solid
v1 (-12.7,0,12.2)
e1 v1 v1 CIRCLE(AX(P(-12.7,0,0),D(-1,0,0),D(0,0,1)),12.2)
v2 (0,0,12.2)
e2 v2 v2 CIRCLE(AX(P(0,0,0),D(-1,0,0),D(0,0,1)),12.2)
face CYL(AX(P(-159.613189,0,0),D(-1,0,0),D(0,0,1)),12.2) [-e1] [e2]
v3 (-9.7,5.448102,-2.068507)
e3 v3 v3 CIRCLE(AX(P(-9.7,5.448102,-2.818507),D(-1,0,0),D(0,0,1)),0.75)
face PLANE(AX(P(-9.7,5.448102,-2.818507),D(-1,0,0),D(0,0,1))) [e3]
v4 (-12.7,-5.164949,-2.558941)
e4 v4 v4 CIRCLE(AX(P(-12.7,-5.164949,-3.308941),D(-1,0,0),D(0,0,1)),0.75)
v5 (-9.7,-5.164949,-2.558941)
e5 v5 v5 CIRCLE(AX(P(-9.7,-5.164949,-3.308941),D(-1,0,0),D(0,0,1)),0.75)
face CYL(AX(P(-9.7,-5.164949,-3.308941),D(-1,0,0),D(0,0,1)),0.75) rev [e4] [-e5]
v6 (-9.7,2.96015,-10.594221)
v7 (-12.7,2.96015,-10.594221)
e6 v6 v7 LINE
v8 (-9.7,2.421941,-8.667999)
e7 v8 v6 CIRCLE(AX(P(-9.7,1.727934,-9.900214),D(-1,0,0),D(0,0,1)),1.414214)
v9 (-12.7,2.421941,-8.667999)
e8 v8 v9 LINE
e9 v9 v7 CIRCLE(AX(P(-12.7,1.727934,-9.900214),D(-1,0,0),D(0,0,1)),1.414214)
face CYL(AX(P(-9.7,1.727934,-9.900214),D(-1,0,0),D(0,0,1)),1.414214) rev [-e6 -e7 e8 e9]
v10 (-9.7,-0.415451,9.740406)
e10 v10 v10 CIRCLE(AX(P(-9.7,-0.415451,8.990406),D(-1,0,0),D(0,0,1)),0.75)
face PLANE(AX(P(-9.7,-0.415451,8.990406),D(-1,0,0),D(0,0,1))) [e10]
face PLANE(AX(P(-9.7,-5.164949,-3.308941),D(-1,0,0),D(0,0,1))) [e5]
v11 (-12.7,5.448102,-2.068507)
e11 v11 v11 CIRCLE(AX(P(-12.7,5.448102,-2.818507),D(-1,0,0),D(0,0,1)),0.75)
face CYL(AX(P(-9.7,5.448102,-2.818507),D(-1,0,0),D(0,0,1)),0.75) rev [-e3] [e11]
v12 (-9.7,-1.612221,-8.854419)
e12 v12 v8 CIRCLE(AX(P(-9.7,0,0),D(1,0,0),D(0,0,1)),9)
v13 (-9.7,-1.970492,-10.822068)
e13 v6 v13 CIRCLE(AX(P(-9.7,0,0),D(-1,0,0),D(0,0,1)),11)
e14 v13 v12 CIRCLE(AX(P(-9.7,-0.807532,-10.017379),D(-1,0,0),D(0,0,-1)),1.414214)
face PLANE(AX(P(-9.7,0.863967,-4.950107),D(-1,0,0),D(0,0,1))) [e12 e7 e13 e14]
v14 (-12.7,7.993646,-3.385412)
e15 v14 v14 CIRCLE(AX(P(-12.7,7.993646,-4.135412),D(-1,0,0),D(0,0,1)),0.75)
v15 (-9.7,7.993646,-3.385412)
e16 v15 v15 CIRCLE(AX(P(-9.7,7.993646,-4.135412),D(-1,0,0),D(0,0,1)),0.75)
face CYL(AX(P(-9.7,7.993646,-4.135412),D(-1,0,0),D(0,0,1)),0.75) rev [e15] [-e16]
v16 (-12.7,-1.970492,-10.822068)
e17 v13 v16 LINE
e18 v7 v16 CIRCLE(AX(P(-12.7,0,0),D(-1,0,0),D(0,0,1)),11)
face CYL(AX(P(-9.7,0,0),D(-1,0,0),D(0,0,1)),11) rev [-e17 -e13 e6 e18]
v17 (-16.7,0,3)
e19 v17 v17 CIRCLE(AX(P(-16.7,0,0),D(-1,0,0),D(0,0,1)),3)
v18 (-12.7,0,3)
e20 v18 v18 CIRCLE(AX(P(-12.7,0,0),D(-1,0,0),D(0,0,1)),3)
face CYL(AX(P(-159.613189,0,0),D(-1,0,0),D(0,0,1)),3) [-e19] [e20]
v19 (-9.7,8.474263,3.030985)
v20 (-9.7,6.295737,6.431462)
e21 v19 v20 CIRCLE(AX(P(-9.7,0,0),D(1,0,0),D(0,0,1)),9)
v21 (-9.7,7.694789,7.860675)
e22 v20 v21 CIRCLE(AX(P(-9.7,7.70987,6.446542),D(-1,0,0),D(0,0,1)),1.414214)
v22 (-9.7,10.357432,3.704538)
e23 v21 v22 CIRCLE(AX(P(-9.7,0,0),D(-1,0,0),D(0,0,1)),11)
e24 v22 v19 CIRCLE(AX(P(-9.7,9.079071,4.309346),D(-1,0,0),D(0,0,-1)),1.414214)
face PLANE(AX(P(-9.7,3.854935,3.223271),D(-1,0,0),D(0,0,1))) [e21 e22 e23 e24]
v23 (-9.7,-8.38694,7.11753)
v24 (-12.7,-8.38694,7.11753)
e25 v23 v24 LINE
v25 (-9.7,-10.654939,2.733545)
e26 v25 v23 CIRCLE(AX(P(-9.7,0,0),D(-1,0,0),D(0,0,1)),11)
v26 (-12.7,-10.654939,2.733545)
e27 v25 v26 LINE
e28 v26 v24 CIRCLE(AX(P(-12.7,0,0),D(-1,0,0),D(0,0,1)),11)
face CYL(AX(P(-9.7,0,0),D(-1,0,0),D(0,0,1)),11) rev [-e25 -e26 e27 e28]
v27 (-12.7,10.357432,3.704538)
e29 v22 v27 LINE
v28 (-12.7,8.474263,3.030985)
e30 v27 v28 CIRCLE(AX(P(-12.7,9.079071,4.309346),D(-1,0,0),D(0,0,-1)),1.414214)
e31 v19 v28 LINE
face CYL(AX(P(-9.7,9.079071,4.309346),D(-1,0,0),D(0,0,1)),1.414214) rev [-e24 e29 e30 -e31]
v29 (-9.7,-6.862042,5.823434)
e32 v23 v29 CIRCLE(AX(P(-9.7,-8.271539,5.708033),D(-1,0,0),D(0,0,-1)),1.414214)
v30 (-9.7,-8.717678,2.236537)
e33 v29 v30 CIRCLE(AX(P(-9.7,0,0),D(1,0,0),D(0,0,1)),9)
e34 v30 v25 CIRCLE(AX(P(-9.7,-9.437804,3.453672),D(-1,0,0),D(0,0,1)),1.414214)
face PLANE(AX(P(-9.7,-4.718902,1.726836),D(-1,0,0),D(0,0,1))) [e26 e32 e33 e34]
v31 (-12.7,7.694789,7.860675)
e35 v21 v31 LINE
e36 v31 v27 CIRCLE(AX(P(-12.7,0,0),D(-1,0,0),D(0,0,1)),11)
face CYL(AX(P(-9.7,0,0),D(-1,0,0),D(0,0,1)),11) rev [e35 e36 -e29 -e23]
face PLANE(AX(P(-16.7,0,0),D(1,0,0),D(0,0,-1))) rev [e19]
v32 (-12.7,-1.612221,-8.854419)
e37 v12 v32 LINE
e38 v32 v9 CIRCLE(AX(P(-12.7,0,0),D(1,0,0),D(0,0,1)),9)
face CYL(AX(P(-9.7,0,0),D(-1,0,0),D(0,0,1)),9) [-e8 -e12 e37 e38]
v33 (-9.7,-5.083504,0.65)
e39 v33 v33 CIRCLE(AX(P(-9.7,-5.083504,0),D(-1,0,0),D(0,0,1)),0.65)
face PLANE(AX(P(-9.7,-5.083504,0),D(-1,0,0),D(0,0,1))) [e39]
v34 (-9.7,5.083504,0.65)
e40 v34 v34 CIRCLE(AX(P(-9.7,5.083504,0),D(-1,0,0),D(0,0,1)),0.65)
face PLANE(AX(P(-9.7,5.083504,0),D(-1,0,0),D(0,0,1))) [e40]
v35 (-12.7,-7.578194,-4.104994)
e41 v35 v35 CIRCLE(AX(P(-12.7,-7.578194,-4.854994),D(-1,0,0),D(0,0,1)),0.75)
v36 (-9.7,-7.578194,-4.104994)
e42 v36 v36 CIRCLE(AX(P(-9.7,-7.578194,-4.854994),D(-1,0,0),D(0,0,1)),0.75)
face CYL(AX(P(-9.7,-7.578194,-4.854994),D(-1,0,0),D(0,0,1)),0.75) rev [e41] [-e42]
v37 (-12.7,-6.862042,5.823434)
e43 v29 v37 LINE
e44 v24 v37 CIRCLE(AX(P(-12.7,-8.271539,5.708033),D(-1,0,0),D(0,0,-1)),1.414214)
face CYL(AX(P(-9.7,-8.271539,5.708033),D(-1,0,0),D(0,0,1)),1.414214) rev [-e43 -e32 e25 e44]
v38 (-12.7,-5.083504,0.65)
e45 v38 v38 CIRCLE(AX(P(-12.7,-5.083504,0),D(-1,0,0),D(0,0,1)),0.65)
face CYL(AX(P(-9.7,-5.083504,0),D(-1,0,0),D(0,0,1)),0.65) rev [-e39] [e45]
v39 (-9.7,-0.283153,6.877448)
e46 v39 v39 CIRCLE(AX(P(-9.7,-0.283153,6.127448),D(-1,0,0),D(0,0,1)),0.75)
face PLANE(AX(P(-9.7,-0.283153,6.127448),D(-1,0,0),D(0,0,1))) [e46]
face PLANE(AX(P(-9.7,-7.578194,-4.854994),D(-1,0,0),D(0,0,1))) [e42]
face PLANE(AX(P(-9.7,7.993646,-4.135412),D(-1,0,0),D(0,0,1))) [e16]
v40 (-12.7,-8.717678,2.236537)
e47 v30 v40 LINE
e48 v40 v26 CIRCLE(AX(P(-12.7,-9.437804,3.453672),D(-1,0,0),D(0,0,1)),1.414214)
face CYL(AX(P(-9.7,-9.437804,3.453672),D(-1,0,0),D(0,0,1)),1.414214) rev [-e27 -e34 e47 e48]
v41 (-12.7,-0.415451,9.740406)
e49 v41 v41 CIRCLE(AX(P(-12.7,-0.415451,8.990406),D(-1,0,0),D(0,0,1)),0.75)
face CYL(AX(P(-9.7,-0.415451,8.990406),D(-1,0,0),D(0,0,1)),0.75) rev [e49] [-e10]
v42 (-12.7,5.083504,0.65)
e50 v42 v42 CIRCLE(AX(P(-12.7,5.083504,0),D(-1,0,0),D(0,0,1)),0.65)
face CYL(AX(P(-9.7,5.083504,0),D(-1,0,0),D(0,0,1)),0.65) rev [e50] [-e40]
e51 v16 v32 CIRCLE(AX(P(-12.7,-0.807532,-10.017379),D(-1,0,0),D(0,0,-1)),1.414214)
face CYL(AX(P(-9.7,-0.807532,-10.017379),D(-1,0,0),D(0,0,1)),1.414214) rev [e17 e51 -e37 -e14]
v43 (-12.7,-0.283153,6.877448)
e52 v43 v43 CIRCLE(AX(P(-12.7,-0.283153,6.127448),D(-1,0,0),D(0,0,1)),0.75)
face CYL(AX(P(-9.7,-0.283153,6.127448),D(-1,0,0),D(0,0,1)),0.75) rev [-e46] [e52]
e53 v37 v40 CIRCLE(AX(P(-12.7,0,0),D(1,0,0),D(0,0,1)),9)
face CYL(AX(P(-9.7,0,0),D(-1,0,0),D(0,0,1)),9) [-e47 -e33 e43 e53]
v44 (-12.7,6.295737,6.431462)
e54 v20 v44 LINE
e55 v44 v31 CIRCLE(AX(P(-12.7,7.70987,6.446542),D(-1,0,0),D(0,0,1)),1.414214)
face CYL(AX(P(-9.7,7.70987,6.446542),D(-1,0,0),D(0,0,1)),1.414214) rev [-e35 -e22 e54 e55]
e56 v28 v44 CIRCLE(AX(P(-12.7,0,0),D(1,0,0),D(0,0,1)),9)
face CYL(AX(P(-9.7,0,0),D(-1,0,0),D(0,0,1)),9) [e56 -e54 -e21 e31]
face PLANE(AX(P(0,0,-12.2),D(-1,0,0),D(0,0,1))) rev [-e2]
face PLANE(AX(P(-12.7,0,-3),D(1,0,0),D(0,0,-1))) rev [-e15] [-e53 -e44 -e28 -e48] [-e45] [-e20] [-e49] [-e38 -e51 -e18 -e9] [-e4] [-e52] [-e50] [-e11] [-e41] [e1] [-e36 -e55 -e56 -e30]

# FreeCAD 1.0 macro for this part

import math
import FreeCAD as App
import Part
import Sketcher
from FreeCAD import Vector
Q = App.Units.Quantity


def add_polygon(sketch, points):
    """Adds a closed chain of lines whose ends are joined by coincident constraints."""
    first, n = sketch.GeometryCount, len(points)
    for a, b in zip(points, points[1:] + points[:1]):
        sketch.addGeometry(Part.LineSegment(App.Vector(*a, 0), App.Vector(*b, 0)), False)
    for i in range(n):
        sketch.addConstraint(Sketcher.Constraint("Coincident", first + i, 2, first + (i + 1) % n, 1))

doc = App.newDocument("Part")
params = doc.addObject("Spreadsheet::Sheet", "Params")
for row, (alias, value) in enumerate([
    ("sketch1_width", "4 mm"),
    ("sketch1_height", "3 mm"),
    ("sketch1_width2", "16.7 mm"),
    ("sketch1_height2", "12.2 mm"),
    ("revolution_angle", "360 deg"),
    ("sketch2_radius", "9 mm"),
    ("sketch2_radius2", "11 mm"),
    ("pocket1_length", "3 mm"),
    ("sketch3_diameter", "1.5 mm"),
    ("pocket2_length", "3 mm"),
    ("sketch4_diameter", "1.3 mm"),
    ("pocket3_length", "3 mm"),
], start=1):
    params.set(f"A{row}", alias)
    params.set(f"B{row}", "=" + value)
    params.setAlias(f"B{row}", alias)

body = doc.addObject("PartDesign::Body", "Body")

# Sketch on XZ plane
sketch1 = body.newObject("Sketcher::SketchObject", "Sketch")
sketch1.AttachmentSupport = (doc.getObject("XZ_Plane"), [""])
sketch1.MapMode = "FlatFace"
add_polygon(sketch1, [(-16.7, 0), (0, 0), (0, -12.2), (-12.7, -12.2), (-12.7, -3), (-16.7, -3)])  # lines 0-5
sketch1.addConstraint([
    Sketcher.Constraint("Horizontal", 0),
    Sketcher.Constraint("Vertical", 1),
    Sketcher.Constraint("Horizontal", 2),
    Sketcher.Constraint("Vertical", 3),
    Sketcher.Constraint("Horizontal", 4),
    Sketcher.Constraint("Vertical", 5),
    Sketcher.Constraint("Coincident", 0, 2, -1, 1),
    Sketcher.Constraint("DistanceX", 4, 2, 4, 1, Q("4 mm")),
    Sketcher.Constraint("DistanceY", 5, 1, 5, 2, Q("3 mm")),
    Sketcher.Constraint("DistanceX", 0, 1, 0, 2, Q("16.7 mm")),
    Sketcher.Constraint("DistanceY", 1, 2, 1, 1, Q("12.2 mm")),
])
sketch1.setExpression("Constraints[13]", "Params.sketch1_width")
sketch1.setExpression("Constraints[14]", "Params.sketch1_height")
sketch1.setExpression("Constraints[15]", "Params.sketch1_width2")
sketch1.setExpression("Constraints[16]", "Params.sketch1_height2")
revolution = body.newObject("PartDesign::Revolution", "Revolution")
revolution.Profile = sketch1
revolution.ReferenceAxis = (sketch1, ["H_Axis"])
revolution.setExpression("Angle", "Params.revolution_angle")

# Sketch on YZ plane
sketch2 = body.newObject("Sketcher::SketchObject", "Sketch001")
sketch2.AttachmentSupport = (doc.getObject("YZ_Plane"), [""])
sketch2.MapMode = "FlatFace"
sketch2.AttachmentOffset = App.Placement(Vector(0, 0, -12.7), App.Rotation())
sketch2.addGeometry([
    Part.ArcOfCircle(Part.Circle(Vector(0, 0, 0), Vector(0, 0, 1), 9), math.radians(-100.319418), math.radians(-74.389012)),  # 0
    Part.ArcOfCircle(Part.Circle(Vector(1.727934, -9.900214, 0), Vector(0, 0, 1), 1.414214), math.radians(-29.389012), math.radians(60.610989)),  # 1
    Part.ArcOfCircle(Part.Circle(Vector(0, 0, 0), Vector(0, 0, 1), 11), math.radians(-100.319418), math.radians(-74.389011)),  # 2
    Part.ArcOfCircle(Part.Circle(Vector(-0.807532, -10.017379, 0), Vector(0, 0, 1), 1.414214), math.radians(124.680582), math.radians(214.680582)),  # 3
    Part.ArcOfCircle(Part.Circle(Vector(0, 0, 0), Vector(0, 0, 1), 9), math.radians(19.680582), math.radians(45.610989)),  # 4
    Part.ArcOfCircle(Part.Circle(Vector(7.70987, 6.446542, 0), Vector(0, 0, 1), 1.414214), math.radians(90.610989), math.radians(180.610989)),  # 5
    Part.ArcOfCircle(Part.Circle(Vector(0, 0, 0), Vector(0, 0, 1), 11), math.radians(19.680582), math.radians(45.610989)),  # 6
    Part.ArcOfCircle(Part.Circle(Vector(9.079071, 4.309346, 0), Vector(0, 0, 1), 1.414214), math.radians(-115.319418), math.radians(-25.319418)),  # 7
    Part.ArcOfCircle(Part.Circle(Vector(0, 0, 0), Vector(0, 0, 1), 9), math.radians(139.680582), math.radians(165.610989)),  # 8
    Part.ArcOfCircle(Part.Circle(Vector(-9.437804, 3.453672, 0), Vector(0, 0, 1), 1.414214), math.radians(-149.389011), math.radians(-59.389012)),  # 9
    Part.ArcOfCircle(Part.Circle(Vector(0, 0, 0), Vector(0, 0, 1), 11), math.radians(139.680582), math.radians(165.610989)),  # 10
    Part.ArcOfCircle(Part.Circle(Vector(-8.271539, 5.708033, 0), Vector(0, 0, 1), 1.414214), math.radians(4.680582), math.radians(94.680582)),  # 11
], False)
sketch2.addConstraint([
    Sketcher.Constraint("Coincident", 0, 2, 1, 2),
    Sketcher.Constraint("Coincident", 1, 1, 2, 2),
    Sketcher.Constraint("Coincident", 2, 1, 3, 2),
    Sketcher.Constraint("Coincident", 3, 1, 0, 1),
    Sketcher.Constraint("Coincident", 4, 2, 5, 2),
    Sketcher.Constraint("Coincident", 5, 1, 6, 2),
    Sketcher.Constraint("Coincident", 6, 1, 7, 2),
    Sketcher.Constraint("Coincident", 7, 1, 4, 1),
    Sketcher.Constraint("Coincident", 8, 2, 9, 2),
    Sketcher.Constraint("Coincident", 9, 1, 10, 2),
    Sketcher.Constraint("Coincident", 10, 1, 11, 2),
    Sketcher.Constraint("Coincident", 11, 1, 8, 1),
    Sketcher.Constraint("Coincident", 0, 3, -1, 1),
    Sketcher.Constraint("Coincident", 2, 3, -1, 1),
    Sketcher.Constraint("Coincident", 4, 3, -1, 1),
    Sketcher.Constraint("Coincident", 6, 3, -1, 1),
    Sketcher.Constraint("Coincident", 8, 3, -1, 1),
    Sketcher.Constraint("Coincident", 10, 3, -1, 1),
    Sketcher.Constraint("Equal", 1, 3),
    Sketcher.Constraint("Equal", 0, 4),
    Sketcher.Constraint("Equal", 3, 5),
    Sketcher.Constraint("Equal", 2, 6),
    Sketcher.Constraint("Equal", 5, 7),
    Sketcher.Constraint("Equal", 4, 8),
    Sketcher.Constraint("Equal", 7, 9),
    Sketcher.Constraint("Equal", 6, 10),
    Sketcher.Constraint("Equal", 9, 11),
    Sketcher.Constraint("Radius", 0, Q("9 mm")),
    Sketcher.Constraint("Radius", 2, Q("11 mm")),
    Sketcher.Constraint("DistanceY", 0, 2, -1, 1, Q("8.667999 mm")),
    Sketcher.Constraint("Radius", 1, Q("1.414214 mm")),
    Sketcher.Constraint("DistanceX", 9, 1, 10, 1, Q("2.267999 mm")),
    Sketcher.Constraint("DistanceX", 5, 3, 7, 3, Q("1.369201 mm")),
    Sketcher.Constraint("DistanceY", 1, 1, 3, 1, Q("1.739801 mm")),
    Sketcher.Constraint("DistanceX", 9, 1, 11, 3, Q("2.3834 mm")),
    Sketcher.Constraint("DistanceY", 3, 3, -1, 1, Q("10.017379 mm")),
    Sketcher.Constraint("DistanceX", -1, 1, 5, 3, Q("7.70987 mm")),
    Sketcher.Constraint("DistanceX", 11, 3, -1, 1, Q("8.271539 mm")),
    Sketcher.Constraint("DistanceX", -1, 1, 1, 1, Q("2.96015 mm")),
    Sketcher.Constraint("DistanceX", -1, 1, 5, 1, Q("7.694789 mm")),
    Sketcher.Constraint("DistanceY", 9, 3, 11, 3, Q("2.254361 mm")),
    Sketcher.Constraint("DistanceY", 7, 3, 5, 1, Q("3.551329 mm")),
])
sketch2.setExpression("Constraints[27]", "Params.sketch2_radius")
sketch2.setExpression("Constraints[28]", "Params.sketch2_radius2")
pocket1 = body.newObject("PartDesign::Pocket", "Pocket")
pocket1.Profile = sketch2
pocket1.setExpression("Length", "Params.pocket1_length")
pocket1.Reversed = True

# Sketch on YZ plane
sketch3 = body.newObject("Sketcher::SketchObject", "Sketch002")
sketch3.AttachmentSupport = (doc.getObject("YZ_Plane"), [""])
sketch3.MapMode = "FlatFace"
sketch3.AttachmentOffset = App.Placement(Vector(0, 0, -12.7), App.Rotation())
sketch3.addGeometry([
    Part.Circle(Vector(5.448102, -2.818507, 0), Vector(0, 0, 1), 0.75),  # 0
    Part.Circle(Vector(7.993646, -4.135412, 0), Vector(0, 0, 1), 0.75),  # 1
    Part.Circle(Vector(-0.415451, 8.990406, 0), Vector(0, 0, 1), 0.75),  # 2
    Part.Circle(Vector(-0.283153, 6.127448, 0), Vector(0, 0, 1), 0.75),  # 3
    Part.Circle(Vector(-7.578194, -4.854994, 0), Vector(0, 0, 1), 0.75),  # 4
    Part.Circle(Vector(-5.164949, -3.308941, 0), Vector(0, 0, 1), 0.75),  # 5
], False)
sketch3.addConstraint([
    Sketcher.Constraint("Equal", 0, 1),
    Sketcher.Constraint("Equal", 1, 2),
    Sketcher.Constraint("Equal", 2, 3),
    Sketcher.Constraint("Equal", 3, 4),
    Sketcher.Constraint("Equal", 4, 5),
    Sketcher.Constraint("Diameter", 0, Q("1.5 mm")),
    Sketcher.Constraint("DistanceX", -1, 1, 0, 3, Q("5.448102 mm")),
    Sketcher.Constraint("DistanceX", 2, 3, 3, 3, Q("0.132299 mm")),
    Sketcher.Constraint("DistanceX", 3, 3, 1, 3, Q("8.276798 mm")),
    Sketcher.Constraint("DistanceY", 4, 3, 2, 3, Q("13.8454 mm")),
    Sketcher.Constraint("DistanceY", 1, 3, -1, 1, Q("4.135412 mm")),
    Sketcher.Constraint("DistanceX", 2, 3, -1, 1, Q("0.415451 mm")),
    Sketcher.Constraint("DistanceX", 5, 3, -1, 1, Q("5.164949 mm")),
    Sketcher.Constraint("DistanceY", 5, 3, -1, 1, Q("3.308941 mm")),
    Sketcher.Constraint("DistanceY", 3, 3, 2, 3, Q("2.862958 mm")),
    Sketcher.Constraint("DistanceY", 1, 3, 3, 3, Q("10.262859 mm")),
    Sketcher.Constraint("DistanceX", 4, 3, 3, 3, Q("7.295042 mm")),
    Sketcher.Constraint("DistanceY", 0, 3, -1, 1, Q("2.818507 mm")),
])
sketch3.setExpression("Constraints[5]", "Params.sketch3_diameter")
pocket2 = body.newObject("PartDesign::Pocket", "Pocket001")
pocket2.Profile = sketch3
pocket2.setExpression("Length", "Params.pocket2_length")
pocket2.Reversed = True

# Sketch on YZ plane
sketch4 = body.newObject("Sketcher::SketchObject", "Sketch003")
sketch4.AttachmentSupport = (doc.getObject("YZ_Plane"), [""])
sketch4.MapMode = "FlatFace"
sketch4.AttachmentOffset = App.Placement(Vector(0, 0, -12.7), App.Rotation())
sketch4.addGeometry([
    Part.Circle(Vector(5.083504, 0, 0), Vector(0, 0, 1), 0.65),
    Part.Circle(Vector(-5.083504, 0, 0), Vector(0, 0, 1), 0.65),
], False)
sketch4.addConstraint([
    Sketcher.Constraint("Equal", 0, 1),
    Sketcher.Constraint("Symmetric", 0, 3, 1, 3, -1, 1),
    Sketcher.Constraint("PointOnObject", 0, 3, -1),
    Sketcher.Constraint("Diameter", 0, Q("1.3 mm")),
    Sketcher.Constraint("DistanceX", -1, 1, 0, 3, Q("5.083504 mm")),
])
sketch4.setExpression("Constraints[3]", "Params.sketch4_diameter")
pocket3 = body.newObject("PartDesign::Pocket", "Pocket002")
pocket3.Profile = sketch4
pocket3.setExpression("Length", "Params.pocket3_length")
pocket3.Reversed = True

doc.recompute()
